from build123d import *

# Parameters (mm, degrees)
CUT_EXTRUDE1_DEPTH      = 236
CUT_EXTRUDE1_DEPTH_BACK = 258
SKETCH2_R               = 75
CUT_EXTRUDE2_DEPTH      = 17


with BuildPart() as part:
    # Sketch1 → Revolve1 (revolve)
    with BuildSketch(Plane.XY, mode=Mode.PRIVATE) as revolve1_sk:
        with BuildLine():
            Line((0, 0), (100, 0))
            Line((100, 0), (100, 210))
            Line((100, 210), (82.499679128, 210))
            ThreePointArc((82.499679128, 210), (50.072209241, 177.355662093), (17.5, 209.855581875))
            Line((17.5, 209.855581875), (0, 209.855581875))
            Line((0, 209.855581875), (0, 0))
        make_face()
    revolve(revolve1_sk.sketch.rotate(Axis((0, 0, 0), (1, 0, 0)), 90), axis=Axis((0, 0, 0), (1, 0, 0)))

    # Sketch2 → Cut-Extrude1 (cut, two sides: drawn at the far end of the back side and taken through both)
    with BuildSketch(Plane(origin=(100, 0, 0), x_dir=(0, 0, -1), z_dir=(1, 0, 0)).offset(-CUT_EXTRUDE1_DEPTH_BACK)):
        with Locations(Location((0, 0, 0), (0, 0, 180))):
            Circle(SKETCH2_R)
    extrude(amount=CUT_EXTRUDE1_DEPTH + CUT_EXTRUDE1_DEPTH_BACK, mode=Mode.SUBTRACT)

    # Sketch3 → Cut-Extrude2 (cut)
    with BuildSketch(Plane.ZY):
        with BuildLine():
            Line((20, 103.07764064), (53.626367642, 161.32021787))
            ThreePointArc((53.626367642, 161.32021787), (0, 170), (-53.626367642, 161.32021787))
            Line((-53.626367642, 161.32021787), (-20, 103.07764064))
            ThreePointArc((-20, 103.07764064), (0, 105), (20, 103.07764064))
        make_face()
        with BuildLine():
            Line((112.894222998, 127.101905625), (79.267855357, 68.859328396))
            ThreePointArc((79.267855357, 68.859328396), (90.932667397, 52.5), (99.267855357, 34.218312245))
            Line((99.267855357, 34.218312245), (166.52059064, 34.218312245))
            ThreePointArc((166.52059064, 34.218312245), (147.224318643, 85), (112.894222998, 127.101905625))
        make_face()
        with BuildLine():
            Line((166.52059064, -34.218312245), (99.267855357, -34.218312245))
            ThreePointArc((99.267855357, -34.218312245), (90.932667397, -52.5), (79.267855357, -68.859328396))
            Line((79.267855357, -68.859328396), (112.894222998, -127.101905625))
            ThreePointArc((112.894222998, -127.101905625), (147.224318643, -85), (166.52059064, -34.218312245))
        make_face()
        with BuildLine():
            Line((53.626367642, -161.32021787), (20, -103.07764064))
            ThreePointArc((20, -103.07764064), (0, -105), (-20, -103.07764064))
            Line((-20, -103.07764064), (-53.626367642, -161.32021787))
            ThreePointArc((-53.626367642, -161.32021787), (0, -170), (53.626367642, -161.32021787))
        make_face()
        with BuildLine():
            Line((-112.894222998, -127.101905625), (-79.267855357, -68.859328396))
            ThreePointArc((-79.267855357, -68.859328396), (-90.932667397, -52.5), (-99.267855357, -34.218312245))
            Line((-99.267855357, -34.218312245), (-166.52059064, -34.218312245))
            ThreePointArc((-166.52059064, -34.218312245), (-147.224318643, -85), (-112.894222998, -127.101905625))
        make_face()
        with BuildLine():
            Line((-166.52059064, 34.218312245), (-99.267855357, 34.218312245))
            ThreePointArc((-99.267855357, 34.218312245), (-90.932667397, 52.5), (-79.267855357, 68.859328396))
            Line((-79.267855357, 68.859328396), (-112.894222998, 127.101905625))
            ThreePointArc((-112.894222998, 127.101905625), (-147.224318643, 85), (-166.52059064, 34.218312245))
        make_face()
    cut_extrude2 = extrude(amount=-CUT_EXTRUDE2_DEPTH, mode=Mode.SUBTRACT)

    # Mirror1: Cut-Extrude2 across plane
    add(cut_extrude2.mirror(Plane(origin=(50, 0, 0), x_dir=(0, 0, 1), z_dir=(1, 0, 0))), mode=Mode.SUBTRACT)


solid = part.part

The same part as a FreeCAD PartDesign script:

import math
import FreeCAD as App
import Part
import Sketcher

V = App.Vector
Q = App.Units.Quantity

doc = App.newDocument("Part")
body = doc.addObject("PartDesign::Body", "Body")

# Sketch on XY plane
sketch1 = body.newObject("Sketcher::SketchObject", "Sketch")
sketch1.AttachmentSupport = (doc.getObject("XY_Plane"), [""])
sketch1.MapMode = "FlatFace"
sketch1.addGeometry([
    Part.LineSegment(V(0, 0, 0), V(100, 0, 0)),  # 0
    Part.LineSegment(V(100, 0, 0), V(100, 210, 0)),  # 1
    Part.LineSegment(V(100, 210, 0), V(82.499679, 210, 0)),  # 2
    Part.ArcOfCircle(Part.Circle(V(50, 209.855582, 0), V(0, 0, 1), 32.5), math.radians(180), math.radians(360.254602)),  # 3
    Part.LineSegment(V(17.5, 209.855582, 0), V(0, 209.855582, 0)),  # 4
    Part.LineSegment(V(0, 209.855582, 0), V(0, 0, 0)),  # 5
], False)
sketch1.addConstraint([
    Sketcher.Constraint("Coincident", 0, 2, 1, 1),
    Sketcher.Constraint("Coincident", 1, 2, 2, 1),
    Sketcher.Constraint("Coincident", 2, 2, 3, 2),
    Sketcher.Constraint("Coincident", 3, 1, 4, 1),
    Sketcher.Constraint("Coincident", 4, 2, 5, 1),
    Sketcher.Constraint("Coincident", 5, 2, 0, 1),
    Sketcher.Constraint("Horizontal", 0),
    Sketcher.Constraint("Vertical", 1),
    Sketcher.Constraint("Horizontal", 2),
    Sketcher.Constraint("Horizontal", 4),
    Sketcher.Constraint("Vertical", 5),
    Sketcher.Constraint("Coincident", 5, 2, -1, 1),
    Sketcher.Constraint("Radius", 3, 32.5),
    Sketcher.Constraint("DistanceX", 0, 1, 0, 2, 100.0),
    Sketcher.Constraint("DistanceY", 1, 1, 1, 2, 210.0),
    Sketcher.Constraint("DistanceX", 4, 2, 4, 1, 17.5),
    Sketcher.Constraint("DistanceX", 2, 2, 2, 1, 17.500321),
    Sketcher.Constraint("DistanceY", 5, 2, 5, 1, 209.855582),
])
revolution = body.newObject("PartDesign::Revolution", "Revolution")
revolution.Profile = sketch1
revolution.ReferenceAxis = (sketch1, ["H_Axis"])
revolution.Angle = 360

# Sketch on YZ plane
sketch2 = body.newObject("Sketcher::SketchObject", "Sketch001")
sketch2.AttachmentSupport = (doc.getObject("YZ_Plane"), [""])
sketch2.MapMode = "FlatFace"
sketch2.AttachmentOffset = App.Placement(V(0, 0, 100), App.Rotation())
sketch2.addGeometry(Part.Circle(V(0, 0, 0), V(0, 0, 1), 75), False)
sketch2.addConstraint([
    Sketcher.Constraint("Coincident", 0, 3, -1, 1),
    Sketcher.Constraint("Diameter", 0, 150.0),
])
pocket1 = body.newObject("PartDesign::Pocket", "Pocket")
pocket1.Profile = sketch2
pocket1.Type = "ThroughAll"
pocket1.Midplane = True

# Sketch on YZ plane
sketch3 = body.newObject("Sketcher::SketchObject", "Sketch002")
sketch3.AttachmentSupport = (doc.getObject("YZ_Plane"), [""])
sketch3.MapMode = "FlatFace"
sketch3.addGeometry([
    Part.LineSegment(V(103, 20, 0), V(161, 54, 0)),  # 0
    Part.ArcOfCircle(Part.Circle(V(0, 0, 0), V(0, 0, 1), 170), math.radians(-18), math.radians(18)),  # 1
    Part.LineSegment(V(161, -54, 0), V(103, -20, 0)),  # 2
    Part.ArcOfCircle(Part.Circle(V(0, 0, 0), V(0, 0, 1), 105), math.radians(-11), math.radians(11)),  # 3
    Part.LineSegment(V(127, 113, 0), V(69, 79, 0)),  # 4
    Part.ArcOfCircle(Part.Circle(V(0, 0, 0), V(0, 0, 1), 105), math.radians(49), math.radians(71)),  # 5
    Part.LineSegment(V(34, 99, 0), V(34, 167, 0)),  # 6
    Part.ArcOfCircle(Part.Circle(V(0, 0, 0), V(0, 0, 1), 170), math.radians(42), math.radians(78)),  # 7
    Part.LineSegment(V(-34, 167, 0), V(-34, 99, 0)),  # 8
    Part.ArcOfCircle(Part.Circle(V(0, 0, 0), V(0, 0, 1), 105), math.radians(109), math.radians(131)),  # 9
    Part.LineSegment(V(-69, 79, 0), V(-127, 113, 0)),  # 10
    Part.ArcOfCircle(Part.Circle(V(0, 0, 0), V(0, 0, 1), 170), math.radians(102), math.radians(138)),  # 11
    Part.LineSegment(V(-161, 54, 0), V(-103, 20, 0)),  # 12
    Part.ArcOfCircle(Part.Circle(V(0, 0, 0), V(0, 0, 1), 105), math.radians(169), math.radians(191)),  # 13
    Part.LineSegment(V(-103, -20, 0), V(-161, -54, 0)),  # 14
    Part.ArcOfCircle(Part.Circle(V(0, 0, 0), V(0, 0, 1), 170), math.radians(162), math.radians(198)),  # 15
    Part.LineSegment(V(-127, -113, 0), V(-69, -79, 0)),  # 16
    Part.ArcOfCircle(Part.Circle(V(0, 0, 0), V(0, 0, 1), 105), math.radians(-131), math.radians(-109)),  # 17
    Part.LineSegment(V(-34, -99, 0), V(-34, -167, 0)),  # 18
    Part.ArcOfCircle(Part.Circle(V(0, 0, 0), V(0, 0, 1), 170), math.radians(-138), math.radians(-102)),  # 19
    Part.LineSegment(V(34, -167, 0), V(34, -99, 0)),  # 20
    Part.ArcOfCircle(Part.Circle(V(0, 0, 0), V(0, 0, 1), 105), math.radians(-71), math.radians(-49)),  # 21
    Part.LineSegment(V(69, -79, 0), V(127, -113, 0)),  # 22
    Part.ArcOfCircle(Part.Circle(V(0, 0, 0), V(0, 0, 1), 170), math.radians(-78), math.radians(-42)),  # 23
], False)
sketch3.addConstraint([
    Sketcher.Constraint("Coincident", 0, 2, 1, 2),
    Sketcher.Constraint("Coincident", 1, 1, 2, 1),
    Sketcher.Constraint("Coincident", 2, 2, 3, 1),
    Sketcher.Constraint("Coincident", 3, 2, 0, 1),
    Sketcher.Constraint("Coincident", 4, 2, 5, 1),
    Sketcher.Constraint("Coincident", 5, 2, 6, 1),
    Sketcher.Constraint("Coincident", 6, 2, 7, 2),
    Sketcher.Constraint("Coincident", 7, 1, 4, 1),
    Sketcher.Constraint("Coincident", 8, 2, 9, 1),
    Sketcher.Constraint("Coincident", 9, 2, 10, 1),
    Sketcher.Constraint("Coincident", 10, 2, 11, 2),
    Sketcher.Constraint("Coincident", 11, 1, 8, 1),
    Sketcher.Constraint("Coincident", 12, 2, 13, 1),
    Sketcher.Constraint("Coincident", 13, 2, 14, 1),
    Sketcher.Constraint("Coincident", 14, 2, 15, 2),
    Sketcher.Constraint("Coincident", 15, 1, 12, 1),
    Sketcher.Constraint("Coincident", 16, 2, 17, 1),
    Sketcher.Constraint("Coincident", 17, 2, 18, 1),
    Sketcher.Constraint("Coincident", 18, 2, 19, 2),
    Sketcher.Constraint("Coincident", 19, 1, 16, 1),
    Sketcher.Constraint("Coincident", 20, 2, 21, 1),
    Sketcher.Constraint("Coincident", 21, 2, 22, 1),
    Sketcher.Constraint("Coincident", 22, 2, 23, 2),
    Sketcher.Constraint("Coincident", 23, 1, 20, 1),
    Sketcher.Constraint("Vertical", 6),
    Sketcher.Constraint("Vertical", 8),
    Sketcher.Constraint("Vertical", 18),
    Sketcher.Constraint("Vertical", 20),
    Sketcher.Constraint("Coincident", 1, 3, -1, 1),
    Sketcher.Constraint("Coincident", 3, 3, -1, 1),
    Sketcher.Constraint("Coincident", 5, 3, -1, 1),
    Sketcher.Constraint("Coincident", 7, 3, -1, 1),
    Sketcher.Constraint("Coincident", 9, 3, -1, 1),
    Sketcher.Constraint("Coincident", 11, 3, -1, 1),
    Sketcher.Constraint("Coincident", 13, 3, -1, 1),
    Sketcher.Constraint("Coincident", 15, 3, -1, 1),
    Sketcher.Constraint("Coincident", 17, 3, -1, 1),
    Sketcher.Constraint("Coincident", 19, 3, -1, 1),
    Sketcher.Constraint("Coincident", 21, 3, -1, 1),
    Sketcher.Constraint("Coincident", 23, 3, -1, 1),
    Sketcher.Constraint("Equal", 3, 5),
    Sketcher.Constraint("Equal", 1, 7),
    Sketcher.Constraint("Equal", 5, 9),
    Sketcher.Constraint("Equal", 7, 11),
    Sketcher.Constraint("Equal", 9, 13),
    Sketcher.Constraint("Equal", 11, 15),
    Sketcher.Constraint("Equal", 13, 17),
    Sketcher.Constraint("Equal", 15, 19),
    Sketcher.Constraint("Equal", 17, 21),
    Sketcher.Constraint("Equal", 19, 23),
    Sketcher.Constraint("Parallel", 0, 4),
    Sketcher.Constraint("Parallel", 2, 10),
    Sketcher.Constraint("Parallel", 10, 12),
    Sketcher.Constraint("Parallel", 4, 14),
    Sketcher.Constraint("Parallel", 14, 16),
    Sketcher.Constraint("Parallel", 12, 22),
    Sketcher.Constraint("Horizontal", 5, 2, 8, 2),
    Sketcher.Constraint("Horizontal", 4, 2, 9, 2),
    Sketcher.Constraint("Horizontal", 7, 1, 10, 2),
    Sketcher.Constraint("Horizontal", 3, 2, 12, 2),
    Sketcher.Constraint("Horizontal", 2, 2, 13, 2),
    Sketcher.Constraint("Horizontal", 17, 2, 20, 2),
    Sketcher.Constraint("Horizontal", 16, 2, 21, 2),
    Sketcher.Constraint("Vertical", 0, 2, 1, 1),
    Sketcher.Constraint("Vertical", 9, 2, 16, 2),
    Sketcher.Constraint("Vertical", 11, 1, 17, 2),
    Sketcher.Constraint("Equal", 2, 4),
    Sketcher.Constraint("Radius", 1, 170.0),
    Sketcher.Constraint("Radius", 3, 105.0),
    Sketcher.Constraint("Angle", 0, Q("30 deg")),
    Sketcher.Constraint("DistanceY", 2, 2, -1, 1, 20.0),
    Sketcher.Constraint("DistanceY", 4, 2, 5, 2, 20.0),
])
pocket2 = body.newObject("PartDesign::Pocket", "Pocket001")
pocket2.Profile = sketch3
pocket2.Length = 17
pocket2.Reversed = True
doc.recompute()

datumplane = body.newObject("PartDesign::Plane", "DatumPlane")
datumplane.AttachmentSupport = (doc.getObject("YZ_Plane"), [""])
datumplane.MapMode = "FlatFace"
datumplane.AttachmentOffset = App.Placement(V(0, 0, 50), App.Rotation())
mirrored = body.newObject("PartDesign::Mirrored", "Mirrored")
mirrored.Originals = [pocket2]
mirrored.MirrorPlane = (datumplane, [""])
body.Tip = mirrored

doc.recompute()
